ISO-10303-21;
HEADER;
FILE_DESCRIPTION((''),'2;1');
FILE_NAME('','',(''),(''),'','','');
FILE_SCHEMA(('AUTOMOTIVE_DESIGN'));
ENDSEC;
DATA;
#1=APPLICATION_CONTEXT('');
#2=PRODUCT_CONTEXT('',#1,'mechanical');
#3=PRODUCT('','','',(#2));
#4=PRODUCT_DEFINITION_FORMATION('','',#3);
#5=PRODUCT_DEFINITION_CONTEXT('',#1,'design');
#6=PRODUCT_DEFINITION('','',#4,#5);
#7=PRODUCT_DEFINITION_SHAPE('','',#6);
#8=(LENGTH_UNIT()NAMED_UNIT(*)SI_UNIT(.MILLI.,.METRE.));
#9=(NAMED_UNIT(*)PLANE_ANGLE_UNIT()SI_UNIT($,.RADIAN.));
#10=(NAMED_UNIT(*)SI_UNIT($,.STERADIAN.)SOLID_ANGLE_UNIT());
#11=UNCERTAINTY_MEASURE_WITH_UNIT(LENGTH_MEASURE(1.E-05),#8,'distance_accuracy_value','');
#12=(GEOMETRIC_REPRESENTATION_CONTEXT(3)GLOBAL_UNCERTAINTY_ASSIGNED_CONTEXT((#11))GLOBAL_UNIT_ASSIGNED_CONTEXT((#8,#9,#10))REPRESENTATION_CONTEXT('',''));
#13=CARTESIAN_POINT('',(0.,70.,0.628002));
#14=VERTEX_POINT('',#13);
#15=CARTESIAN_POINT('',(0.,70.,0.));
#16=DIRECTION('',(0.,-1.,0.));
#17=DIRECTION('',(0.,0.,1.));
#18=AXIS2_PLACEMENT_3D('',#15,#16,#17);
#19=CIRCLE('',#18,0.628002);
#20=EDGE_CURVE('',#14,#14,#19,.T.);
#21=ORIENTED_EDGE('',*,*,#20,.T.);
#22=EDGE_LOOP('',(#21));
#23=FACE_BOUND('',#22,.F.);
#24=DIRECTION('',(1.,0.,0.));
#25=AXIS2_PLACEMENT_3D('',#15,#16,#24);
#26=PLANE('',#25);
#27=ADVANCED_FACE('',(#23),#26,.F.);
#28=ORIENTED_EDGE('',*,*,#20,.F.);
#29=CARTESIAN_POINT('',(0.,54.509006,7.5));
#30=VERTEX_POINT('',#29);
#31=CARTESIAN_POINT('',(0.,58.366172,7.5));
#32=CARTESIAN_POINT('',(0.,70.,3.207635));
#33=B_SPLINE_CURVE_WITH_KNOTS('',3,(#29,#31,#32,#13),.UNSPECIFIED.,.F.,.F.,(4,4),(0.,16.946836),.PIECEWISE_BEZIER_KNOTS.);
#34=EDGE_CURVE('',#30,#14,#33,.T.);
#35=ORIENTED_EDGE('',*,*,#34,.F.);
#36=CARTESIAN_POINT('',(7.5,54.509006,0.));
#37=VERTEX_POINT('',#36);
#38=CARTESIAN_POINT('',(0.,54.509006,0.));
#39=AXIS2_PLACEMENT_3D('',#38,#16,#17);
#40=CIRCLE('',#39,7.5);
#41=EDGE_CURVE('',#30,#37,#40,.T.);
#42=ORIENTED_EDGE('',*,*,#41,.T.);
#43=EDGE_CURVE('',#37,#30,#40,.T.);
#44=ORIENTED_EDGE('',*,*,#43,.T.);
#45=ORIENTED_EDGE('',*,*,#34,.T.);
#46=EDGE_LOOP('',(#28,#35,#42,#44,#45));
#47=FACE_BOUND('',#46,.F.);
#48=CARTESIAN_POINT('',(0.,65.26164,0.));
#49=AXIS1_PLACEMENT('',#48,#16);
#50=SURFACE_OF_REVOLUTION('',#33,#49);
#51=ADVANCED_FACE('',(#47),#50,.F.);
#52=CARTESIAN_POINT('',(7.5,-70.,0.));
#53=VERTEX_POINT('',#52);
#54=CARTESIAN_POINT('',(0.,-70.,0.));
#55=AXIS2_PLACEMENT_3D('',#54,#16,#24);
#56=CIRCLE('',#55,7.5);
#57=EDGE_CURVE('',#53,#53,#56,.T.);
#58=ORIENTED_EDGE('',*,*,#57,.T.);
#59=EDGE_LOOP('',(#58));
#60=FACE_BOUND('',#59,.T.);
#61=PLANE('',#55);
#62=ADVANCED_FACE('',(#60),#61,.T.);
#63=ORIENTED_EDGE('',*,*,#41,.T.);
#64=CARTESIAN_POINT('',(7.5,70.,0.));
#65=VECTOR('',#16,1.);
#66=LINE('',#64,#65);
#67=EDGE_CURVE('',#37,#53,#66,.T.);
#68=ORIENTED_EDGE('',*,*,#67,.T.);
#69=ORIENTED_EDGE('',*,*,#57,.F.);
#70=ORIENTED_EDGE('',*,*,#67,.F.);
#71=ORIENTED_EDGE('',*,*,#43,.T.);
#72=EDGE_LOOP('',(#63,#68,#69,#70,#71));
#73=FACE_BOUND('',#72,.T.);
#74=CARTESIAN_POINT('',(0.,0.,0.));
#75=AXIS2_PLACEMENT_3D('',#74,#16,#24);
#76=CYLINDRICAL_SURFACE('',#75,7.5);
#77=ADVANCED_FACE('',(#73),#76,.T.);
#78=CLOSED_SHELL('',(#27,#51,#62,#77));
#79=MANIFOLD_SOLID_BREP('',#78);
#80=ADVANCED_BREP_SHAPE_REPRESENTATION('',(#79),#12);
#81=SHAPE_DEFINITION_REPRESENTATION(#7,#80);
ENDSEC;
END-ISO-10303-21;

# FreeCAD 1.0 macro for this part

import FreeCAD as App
import Part
import Sketcher

doc = App.newDocument("Part")
params = doc.addObject("Spreadsheet::Sheet", "Params")
for row, (alias, value) in enumerate([
    ("sketch1_diameter", "15 mm"),
    ("pad1_length", "140 mm"),
    ("groove_angle", "360 deg"),
], start=1):
    params.set(f"A{row}", alias)
    params.set(f"B{row}", "=" + value)
    params.setAlias(f"B{row}", alias)

body = doc.addObject("PartDesign::Body", "Body")

sketch1 = doc.addObject("Sketcher::SketchObject", "Sketch")
body.addObject(sketch1)
sketch1.AttachmentSupport = (doc.XZ_Plane, [""])
sketch1.MapMode = "FlatFace"
sketch1.addGeometry(Part.Circle(App.Vector(0, 0, 0), App.Vector(0, 0, 1), 8), False)
sketch1.addConstraint(Sketcher.Constraint("Coincident", 0, 3, -1, 1))
sketch1.addConstraint(Sketcher.Constraint("Diameter", 0, 15.0))
sketch1.setExpression("Constraints[1]", "Params.sketch1_diameter")
pad1 = doc.addObject("PartDesign::Pad", "Pad")
body.addObject(pad1)
pad1.Profile = sketch1
pad1.setExpression("Length", "Params.pad1_length")
pad1.Midplane = True

sketch2 = doc.addObject("Sketcher::SketchObject", "Sketch001")
body.addObject(sketch2)
sketch2.AttachmentSupport = (doc.YZ_Plane, [""])
sketch2.MapMode = "FlatFace"
sketch2.addGeometry(Part.BSplineCurve([App.Vector(54.509006, 7.5, 0), App.Vector(58.366172, 7.5, 0), App.Vector(70, 3.207635, 0), App.Vector(70, 0.628002, 0)], [4, 4], [0, 16.946836], False, 3, [1, 1, 1, 1], False), False)
sketch2.addGeometry(Part.LineSegment(App.Vector(70, 0.628002, 0), App.Vector(70, 7.5, 0)), False)
sketch2.addGeometry(Part.LineSegment(App.Vector(70, 7.5, 0), App.Vector(54.509006, 7.5, 0)), False)
sketch2.addConstraint(Sketcher.Constraint("Block", 0))
sketch2.addConstraint(Sketcher.Constraint("Coincident", 0, 2, 1, 1))
sketch2.addConstraint(Sketcher.Constraint("Coincident", 1, 2, 2, 1))
sketch2.addConstraint(Sketcher.Constraint("Coincident", 2, 2, 0, 1))
sketch2.addConstraint(Sketcher.Constraint("Vertical", 1))
sketch2.addConstraint(Sketcher.Constraint("Horizontal", 2))
groove = doc.addObject("PartDesign::Groove", "Groove")
body.addObject(groove)
groove.Profile = sketch2
groove.ReferenceAxis = (sketch2, ["H_Axis"])
groove.setExpression("Angle", "Params.groove_angle")

doc.recompute()
